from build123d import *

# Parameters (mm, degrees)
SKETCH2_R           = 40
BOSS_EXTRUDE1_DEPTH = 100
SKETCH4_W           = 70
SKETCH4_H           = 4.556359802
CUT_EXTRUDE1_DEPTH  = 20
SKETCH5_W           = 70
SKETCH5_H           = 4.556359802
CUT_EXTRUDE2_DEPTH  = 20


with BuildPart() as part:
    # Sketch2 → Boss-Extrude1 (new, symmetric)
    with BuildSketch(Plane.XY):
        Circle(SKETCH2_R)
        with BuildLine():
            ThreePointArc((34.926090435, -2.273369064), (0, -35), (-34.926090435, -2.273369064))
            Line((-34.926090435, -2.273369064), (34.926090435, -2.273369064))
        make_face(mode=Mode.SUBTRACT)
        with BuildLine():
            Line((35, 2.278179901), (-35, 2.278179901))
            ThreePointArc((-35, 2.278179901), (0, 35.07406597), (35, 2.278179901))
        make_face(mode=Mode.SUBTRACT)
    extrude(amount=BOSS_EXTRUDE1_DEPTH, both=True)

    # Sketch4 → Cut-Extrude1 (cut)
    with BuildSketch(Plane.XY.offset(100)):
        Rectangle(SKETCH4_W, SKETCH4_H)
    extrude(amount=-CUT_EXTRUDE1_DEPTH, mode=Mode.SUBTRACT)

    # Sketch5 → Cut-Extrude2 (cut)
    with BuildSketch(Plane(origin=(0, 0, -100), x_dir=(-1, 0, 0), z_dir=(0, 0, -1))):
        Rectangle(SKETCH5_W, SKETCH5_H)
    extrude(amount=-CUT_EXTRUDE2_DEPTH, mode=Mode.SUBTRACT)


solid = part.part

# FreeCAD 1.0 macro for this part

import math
import FreeCAD as App
import Part
import Sketcher

V = App.Vector


def add_polygon(sketch, points):
    """Adds a closed chain of lines whose ends are joined by coincident constraints."""
    first, n = sketch.GeometryCount, len(points)
    for a, b in zip(points, points[1:] + points[:1]):
        sketch.addGeometry(Part.LineSegment(App.Vector(*a, 0), App.Vector(*b, 0)), False)
    for i in range(n):
        sketch.addConstraint(Sketcher.Constraint("Coincident", first + i, 2, first + (i + 1) % n, 1))

doc = App.newDocument("Part")
params = doc.addObject("Spreadsheet::Sheet", "Params")
for row, (alias, value) in enumerate([
    ("sketch1_diameter", "80 mm"),
    ("sketch1_radius", "35 mm"),
    ("sketch1_width", "70 mm"),
    ("pad1_length", "200 mm"),
    ("sketch2_width", "70 mm"),
    ("pocket1_length", "20 mm"),
    ("sketch3_width", "70 mm"),
    ("pocket2_length", "20 mm"),
], start=1):
    params.set(f"A{row}", alias)
    params.set(f"B{row}", "=" + value)
    params.setAlias(f"B{row}", alias)

body = doc.addObject("PartDesign::Body", "Body")

sketch1 = body.newObject("Sketcher::SketchObject", "Sketch")
sketch1.AttachmentSupport = (doc.getObject("XY_Plane"), [""])
sketch1.MapMode = "FlatFace"
sketch1.addGeometry([
    Part.Circle(V(0, 0, 0), V(0, 0, 1), 40),
    Part.LineSegment(V(-35, -2, 0), V(35, -2, 0)),
    Part.ArcOfCircle(Part.Circle(V(0, 0, 0), V(0, 0, 1), 35), math.radians(-176), math.radians(-4)),
    Part.ArcOfCircle(Part.Circle(V(0, 0, 0), V(0, 0, 1), 35), math.radians(4), math.radians(176)),
    Part.LineSegment(V(35, 2, 0), V(-35, 2, 0)),
], False)
sketch1.addConstraint([
    Sketcher.Constraint("Coincident", 1, 1, 2, 1),
    Sketcher.Constraint("Coincident", 2, 2, 1, 2),
    Sketcher.Constraint("Coincident", 3, 1, 4, 1),
    Sketcher.Constraint("Coincident", 4, 2, 3, 2),
    Sketcher.Constraint("Horizontal", 1),
    Sketcher.Constraint("Horizontal", 4),
    Sketcher.Constraint("Coincident", 0, 3, -1, 1),
    Sketcher.Constraint("Coincident", 2, 3, -1, 1),
    Sketcher.Constraint("Coincident", 3, 3, -1, 1),
    Sketcher.Constraint("Diameter", 0, 80.0),
    Sketcher.Constraint("Radius", 2, 35.0),
    Sketcher.Constraint("DistanceX", 4, 2, 4, 1, 70.0),
    Sketcher.Constraint("Radius", 3, 35.074066),
    Sketcher.Constraint("DistanceX", 1, 1, 1, 2, 69.852181),
])
sketch1.setExpression("Constraints[9]", "Params.sketch1_diameter")
sketch1.setExpression("Constraints[10]", "Params.sketch1_radius")
sketch1.setExpression("Constraints[11]", "Params.sketch1_width")
pad1 = body.newObject("PartDesign::Pad", "Pad")
pad1.Profile = sketch1
pad1.setExpression("Length", "Params.pad1_length")
pad1.Midplane = True

sketch2 = body.newObject("Sketcher::SketchObject", "Sketch001")
sketch2.AttachmentSupport = (doc.getObject("XY_Plane"), [""])
sketch2.MapMode = "FlatFace"
sketch2.AttachmentOffset = App.Placement(V(0, 0, 100), App.Rotation())
add_polygon(sketch2, [(-35, 2.3), (-35, -2.3), (35, -2.3), (35, 2.3)])
sketch2.addConstraint([
    Sketcher.Constraint("Vertical", 0),
    Sketcher.Constraint("Horizontal", 1),
    Sketcher.Constraint("Vertical", 2),
    Sketcher.Constraint("Horizontal", 3),
    Sketcher.Constraint("Symmetric", 0, 2, 2, 2, -1, 1),
    Sketcher.Constraint("DistanceX", 1, 1, 1, 2, 70.0),
    Sketcher.Constraint("DistanceY", 0, 2, 0, 1, 4.55636),
])
sketch2.setExpression("Constraints[9]", "Params.sketch2_width")
pocket1 = body.newObject("PartDesign::Pocket", "Pocket")
pocket1.Profile = sketch2
pocket1.setExpression("Length", "Params.pocket1_length")

sketch3 = body.newObject("Sketcher::SketchObject", "Sketch002")
sketch3.AttachmentSupport = (doc.getObject("XY_Plane"), [""])
sketch3.MapMode = "FlatFace"
sketch3.AttachmentOffset = App.Placement(V(0, 0, -100), App.Rotation())
add_polygon(sketch3, [(35, 2.3), (35, -2.3), (-35, -2.3), (-35, 2.3)])
sketch3.addConstraint([
    Sketcher.Constraint("Vertical", 0),
    Sketcher.Constraint("Horizontal", 1),
    Sketcher.Constraint("Vertical", 2),
    Sketcher.Constraint("Horizontal", 3),
    Sketcher.Constraint("Symmetric", 0, 2, 2, 2, -1, 1),
    Sketcher.Constraint("DistanceX", 1, 2, 1, 1, 70.0),
    Sketcher.Constraint("DistanceY", 0, 2, 0, 1, 4.55636),
])
sketch3.setExpression("Constraints[9]", "Params.sketch3_width")
pocket2 = body.newObject("PartDesign::Pocket", "Pocket001")
pocket2.Profile = sketch3
pocket2.setExpression("Length", "Params.pocket2_length")
pocket2.Reversed = True

doc.recompute()
